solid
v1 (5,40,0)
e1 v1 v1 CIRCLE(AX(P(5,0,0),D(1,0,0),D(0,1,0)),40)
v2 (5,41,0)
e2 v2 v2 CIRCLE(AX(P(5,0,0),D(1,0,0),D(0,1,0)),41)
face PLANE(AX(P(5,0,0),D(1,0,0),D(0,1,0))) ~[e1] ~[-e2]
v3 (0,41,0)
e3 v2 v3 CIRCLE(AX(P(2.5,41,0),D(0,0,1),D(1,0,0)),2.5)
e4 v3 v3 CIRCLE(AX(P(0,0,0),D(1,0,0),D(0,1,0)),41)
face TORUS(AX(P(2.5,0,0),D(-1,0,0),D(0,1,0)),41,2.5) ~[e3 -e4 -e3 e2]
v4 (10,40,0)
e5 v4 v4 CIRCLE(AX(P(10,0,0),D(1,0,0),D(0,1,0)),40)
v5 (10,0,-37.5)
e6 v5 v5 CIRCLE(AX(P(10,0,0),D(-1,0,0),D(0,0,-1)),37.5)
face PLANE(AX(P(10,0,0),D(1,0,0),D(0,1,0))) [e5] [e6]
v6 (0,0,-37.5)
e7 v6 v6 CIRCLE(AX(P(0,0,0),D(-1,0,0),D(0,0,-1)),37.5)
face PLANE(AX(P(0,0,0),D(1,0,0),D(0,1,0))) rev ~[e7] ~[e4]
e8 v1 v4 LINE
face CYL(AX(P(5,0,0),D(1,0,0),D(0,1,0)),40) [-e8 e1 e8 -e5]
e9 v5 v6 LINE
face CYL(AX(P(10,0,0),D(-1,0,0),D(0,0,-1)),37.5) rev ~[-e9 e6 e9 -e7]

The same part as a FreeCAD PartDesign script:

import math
import FreeCAD as App
import Part
import Sketcher

V = App.Vector

doc = App.newDocument("Part")
body = doc.addObject("PartDesign::Body", "Body")

sketch1 = body.newObject("Sketcher::SketchObject", "Sketch")
sketch1.AttachmentSupport = (doc.getObject("XY_Plane"), [""])
sketch1.MapMode = "FlatFace"
sketch1.addGeometry([
    Part.LineSegment(V(0, 41, 0), V(0, 0, 0)),
    Part.LineSegment(V(0, 0, 0), V(10, 0, 0)),
    Part.LineSegment(V(10, 0, 0), V(10, 40, 0)),
    Part.LineSegment(V(10, 40, 0), V(5, 40, 0)),
    Part.LineSegment(V(5, 40, 0), V(5, 41, 0)),
    Part.ArcOfCircle(Part.Circle(V(2.5, 41, 0), V(0, 0, 1), 2.5), math.radians(0), math.radians(180)),
], False)
sketch1.addConstraint([
    Sketcher.Constraint("Coincident", 0, 2, 1, 1),
    Sketcher.Constraint("Coincident", 1, 2, 2, 1),
    Sketcher.Constraint("Coincident", 2, 2, 3, 1),
    Sketcher.Constraint("Coincident", 3, 2, 4, 1),
    Sketcher.Constraint("Tangent", 4, 2, 5, 1),
    Sketcher.Constraint("Tangent", 5, 2, 0, 1),
    Sketcher.Constraint("Vertical", 0),
    Sketcher.Constraint("Horizontal", 1),
    Sketcher.Constraint("Vertical", 2),
    Sketcher.Constraint("Horizontal", 3),
    Sketcher.Constraint("Vertical", 4),
    Sketcher.Constraint("Coincident", 0, 2, -1, 1),
    Sketcher.Constraint("Radius", 5, 2.5),
    Sketcher.Constraint("DistanceX", 3, 2, 3, 1, 5.0),
    Sketcher.Constraint("DistanceY", 0, 2, 0, 1, 41.0),
    Sketcher.Constraint("DistanceY", 2, 1, 2, 2, 40.0),
])
revolution = body.newObject("PartDesign::Revolution", "Revolution")
revolution.Profile = sketch1
revolution.ReferenceAxis = (sketch1, ["H_Axis"])
revolution.Angle = 360

sketch2 = body.newObject("Sketcher::SketchObject", "Sketch001")
sketch2.AttachmentSupport = (doc.getObject("YZ_Plane"), [""])
sketch2.MapMode = "FlatFace"
sketch2.AttachmentOffset = App.Placement(V(0, 0, 10), App.Rotation())
sketch2.addGeometry(Part.Circle(V(0, 0, 0), V(0, 0, 1), 37.5), False)
sketch2.addConstraint([
    Sketcher.Constraint("Coincident", 0, 3, -1, 1),
    Sketcher.Constraint("Diameter", 0, 75.0),
])
doc.recompute()
hole = body.newObject("PartDesign::Hole", "Hole")
hole.Profile = sketch2
hole.ThreadType = "None"
hole.Diameter = 75
hole.DepthType = "Dimension"
hole.Depth = 10
hole.DrillPoint = "Flat"

doc.recompute()
